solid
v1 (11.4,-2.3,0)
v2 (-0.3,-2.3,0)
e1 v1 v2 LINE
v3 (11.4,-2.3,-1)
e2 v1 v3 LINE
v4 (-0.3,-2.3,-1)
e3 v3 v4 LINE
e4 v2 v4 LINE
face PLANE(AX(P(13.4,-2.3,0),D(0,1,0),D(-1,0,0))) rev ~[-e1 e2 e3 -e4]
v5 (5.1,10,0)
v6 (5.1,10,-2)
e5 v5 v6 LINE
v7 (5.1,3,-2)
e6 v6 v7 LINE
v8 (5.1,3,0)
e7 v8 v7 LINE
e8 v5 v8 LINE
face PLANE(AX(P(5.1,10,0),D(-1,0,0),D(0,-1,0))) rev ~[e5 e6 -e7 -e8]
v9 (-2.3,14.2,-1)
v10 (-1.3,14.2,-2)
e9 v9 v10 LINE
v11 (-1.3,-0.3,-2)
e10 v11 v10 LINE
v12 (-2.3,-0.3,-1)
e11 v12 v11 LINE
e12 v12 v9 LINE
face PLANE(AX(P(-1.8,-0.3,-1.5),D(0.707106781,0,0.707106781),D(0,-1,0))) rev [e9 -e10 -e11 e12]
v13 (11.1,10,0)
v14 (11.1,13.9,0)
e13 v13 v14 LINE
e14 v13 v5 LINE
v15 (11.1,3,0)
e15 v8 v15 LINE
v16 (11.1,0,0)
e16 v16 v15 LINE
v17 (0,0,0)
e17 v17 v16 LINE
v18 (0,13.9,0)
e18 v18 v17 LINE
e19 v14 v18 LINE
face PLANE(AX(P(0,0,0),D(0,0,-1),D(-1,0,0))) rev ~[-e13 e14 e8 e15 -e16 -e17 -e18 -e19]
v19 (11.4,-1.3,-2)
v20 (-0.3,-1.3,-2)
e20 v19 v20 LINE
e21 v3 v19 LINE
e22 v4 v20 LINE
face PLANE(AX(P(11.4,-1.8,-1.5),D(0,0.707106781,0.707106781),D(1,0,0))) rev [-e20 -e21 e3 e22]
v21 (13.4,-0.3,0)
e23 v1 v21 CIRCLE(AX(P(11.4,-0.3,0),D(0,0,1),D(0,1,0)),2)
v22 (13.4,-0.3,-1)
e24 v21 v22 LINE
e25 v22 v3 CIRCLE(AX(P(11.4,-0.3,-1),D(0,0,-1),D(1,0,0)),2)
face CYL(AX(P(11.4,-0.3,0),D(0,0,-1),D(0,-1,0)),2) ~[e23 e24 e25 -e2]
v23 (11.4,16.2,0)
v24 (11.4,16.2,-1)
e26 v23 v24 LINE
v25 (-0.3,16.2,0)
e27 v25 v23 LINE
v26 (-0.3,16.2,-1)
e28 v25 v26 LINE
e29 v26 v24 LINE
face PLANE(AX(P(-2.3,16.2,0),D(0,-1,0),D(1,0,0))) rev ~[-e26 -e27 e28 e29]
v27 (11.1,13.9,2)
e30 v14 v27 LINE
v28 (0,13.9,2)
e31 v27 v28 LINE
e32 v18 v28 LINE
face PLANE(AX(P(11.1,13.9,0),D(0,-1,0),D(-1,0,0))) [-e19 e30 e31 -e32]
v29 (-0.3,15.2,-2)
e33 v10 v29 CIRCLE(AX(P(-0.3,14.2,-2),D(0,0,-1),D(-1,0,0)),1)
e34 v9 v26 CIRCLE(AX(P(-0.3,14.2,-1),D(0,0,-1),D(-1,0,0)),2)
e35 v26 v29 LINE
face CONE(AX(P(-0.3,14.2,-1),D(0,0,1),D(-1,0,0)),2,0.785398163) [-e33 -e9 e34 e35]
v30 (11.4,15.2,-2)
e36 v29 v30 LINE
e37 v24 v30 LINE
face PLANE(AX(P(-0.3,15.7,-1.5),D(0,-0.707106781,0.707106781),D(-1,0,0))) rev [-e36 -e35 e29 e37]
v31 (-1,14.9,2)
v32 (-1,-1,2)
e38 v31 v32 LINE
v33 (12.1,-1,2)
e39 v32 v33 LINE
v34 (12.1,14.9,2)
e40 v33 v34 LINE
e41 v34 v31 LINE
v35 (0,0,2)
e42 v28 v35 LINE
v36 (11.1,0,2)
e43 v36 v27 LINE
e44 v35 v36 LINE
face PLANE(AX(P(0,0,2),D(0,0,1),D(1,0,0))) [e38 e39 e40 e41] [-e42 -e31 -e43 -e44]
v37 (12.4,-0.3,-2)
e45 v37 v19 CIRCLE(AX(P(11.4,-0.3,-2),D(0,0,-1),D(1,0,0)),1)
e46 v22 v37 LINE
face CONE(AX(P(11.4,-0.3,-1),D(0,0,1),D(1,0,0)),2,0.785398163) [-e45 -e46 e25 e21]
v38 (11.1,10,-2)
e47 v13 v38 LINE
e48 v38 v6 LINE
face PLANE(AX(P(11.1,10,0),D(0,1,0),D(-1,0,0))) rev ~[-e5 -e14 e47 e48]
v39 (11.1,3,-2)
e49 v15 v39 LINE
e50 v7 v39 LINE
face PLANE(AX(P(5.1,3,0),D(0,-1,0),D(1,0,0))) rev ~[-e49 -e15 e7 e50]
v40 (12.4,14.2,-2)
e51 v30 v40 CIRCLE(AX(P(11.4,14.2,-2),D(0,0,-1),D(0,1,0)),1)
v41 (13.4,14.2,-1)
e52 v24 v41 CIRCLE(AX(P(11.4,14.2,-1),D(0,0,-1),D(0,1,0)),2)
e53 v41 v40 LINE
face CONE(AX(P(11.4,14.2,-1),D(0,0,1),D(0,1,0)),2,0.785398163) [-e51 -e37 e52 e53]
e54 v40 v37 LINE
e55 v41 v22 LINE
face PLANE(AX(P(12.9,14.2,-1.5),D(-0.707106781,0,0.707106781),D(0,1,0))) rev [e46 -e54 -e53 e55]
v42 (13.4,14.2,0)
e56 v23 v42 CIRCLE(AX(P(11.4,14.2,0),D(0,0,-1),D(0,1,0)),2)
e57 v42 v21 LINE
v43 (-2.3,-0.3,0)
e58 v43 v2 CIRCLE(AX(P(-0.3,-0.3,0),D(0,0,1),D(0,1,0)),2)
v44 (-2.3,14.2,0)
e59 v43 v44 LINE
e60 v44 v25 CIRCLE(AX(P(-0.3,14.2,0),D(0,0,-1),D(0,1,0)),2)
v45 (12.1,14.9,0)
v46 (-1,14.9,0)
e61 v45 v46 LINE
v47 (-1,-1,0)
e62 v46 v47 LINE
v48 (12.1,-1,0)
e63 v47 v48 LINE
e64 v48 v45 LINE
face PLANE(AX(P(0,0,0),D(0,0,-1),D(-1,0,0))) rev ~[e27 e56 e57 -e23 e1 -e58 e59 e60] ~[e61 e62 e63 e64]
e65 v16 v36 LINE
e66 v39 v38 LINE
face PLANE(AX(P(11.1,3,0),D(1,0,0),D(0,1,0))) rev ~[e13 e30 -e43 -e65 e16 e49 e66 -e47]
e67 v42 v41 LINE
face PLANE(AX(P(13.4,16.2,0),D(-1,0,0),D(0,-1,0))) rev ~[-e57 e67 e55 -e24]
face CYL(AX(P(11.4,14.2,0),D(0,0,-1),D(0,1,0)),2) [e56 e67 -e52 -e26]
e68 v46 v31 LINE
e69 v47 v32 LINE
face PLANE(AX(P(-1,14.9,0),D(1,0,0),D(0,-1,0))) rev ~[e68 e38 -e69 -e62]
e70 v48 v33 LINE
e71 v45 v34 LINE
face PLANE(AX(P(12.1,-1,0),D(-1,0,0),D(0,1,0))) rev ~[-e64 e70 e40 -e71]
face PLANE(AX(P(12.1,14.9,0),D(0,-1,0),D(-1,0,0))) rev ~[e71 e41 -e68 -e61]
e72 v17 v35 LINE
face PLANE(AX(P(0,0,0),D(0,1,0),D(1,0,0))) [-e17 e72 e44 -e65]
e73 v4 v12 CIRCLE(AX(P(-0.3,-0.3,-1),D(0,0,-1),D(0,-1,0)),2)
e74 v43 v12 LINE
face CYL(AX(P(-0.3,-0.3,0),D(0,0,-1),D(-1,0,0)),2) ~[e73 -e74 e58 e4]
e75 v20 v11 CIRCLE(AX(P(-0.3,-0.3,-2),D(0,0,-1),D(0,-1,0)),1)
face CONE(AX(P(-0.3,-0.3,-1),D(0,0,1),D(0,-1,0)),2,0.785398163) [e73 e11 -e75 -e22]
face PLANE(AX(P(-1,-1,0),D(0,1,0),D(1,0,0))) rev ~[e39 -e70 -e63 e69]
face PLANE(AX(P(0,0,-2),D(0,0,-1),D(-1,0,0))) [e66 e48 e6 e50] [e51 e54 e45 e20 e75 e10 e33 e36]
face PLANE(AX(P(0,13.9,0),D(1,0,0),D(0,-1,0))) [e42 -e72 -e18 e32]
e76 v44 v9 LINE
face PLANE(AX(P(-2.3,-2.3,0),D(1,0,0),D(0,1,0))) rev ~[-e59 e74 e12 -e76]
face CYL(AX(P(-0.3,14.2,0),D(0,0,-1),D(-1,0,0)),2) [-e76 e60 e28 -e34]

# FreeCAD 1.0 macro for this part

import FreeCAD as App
import Part
import Sketcher
from FreeCAD import Vector
Q = App.Units.Quantity


def edges_at(feature, points):
    """Names of the edges that pass closest to the given points."""
    edges = feature.Shape.Edges
    near = lambda p: min(range(len(edges)), key=lambda i: edges[i].distToShape(Part.Vertex(*p))[0])
    return sorted({f"Edge{near(p) + 1}" for p in points})

doc = App.newDocument("Part")
body = doc.addObject("PartDesign::Body", "Body")

# Sketch on XY plane
sketch1 = doc.addObject("Sketcher::SketchObject", "Sketch")
body.addObject(sketch1)
sketch1.AttachmentSupport = (doc.XY_Plane, [""])
sketch1.MapMode = "FlatFace"
sketch1.addGeometry(Part.LineSegment(Vector(-1, 15, 0), Vector(-1, -1, 0)), False)
sketch1.addGeometry(Part.LineSegment(Vector(-1, -1, 0), Vector(12, -1, 0)), False)
sketch1.addGeometry(Part.LineSegment(Vector(12, -1, 0), Vector(12, 15, 0)), False)
sketch1.addGeometry(Part.LineSegment(Vector(12, 15, 0), Vector(-1, 15, 0)), False)
sketch1.addGeometry(Part.LineSegment(Vector(11, 0, 0), Vector(0, 0, 0)), False)
sketch1.addGeometry(Part.LineSegment(Vector(0, 0, 0), Vector(0, 14, 0)), False)
sketch1.addGeometry(Part.LineSegment(Vector(0, 14, 0), Vector(11, 14, 0)), False)
sketch1.addGeometry(Part.LineSegment(Vector(11, 14, 0), Vector(11, 0, 0)), False)
sketch1.addConstraint(Sketcher.Constraint("Coincident", 0, 2, 1, 1))
sketch1.addConstraint(Sketcher.Constraint("Coincident", 1, 2, 2, 1))
sketch1.addConstraint(Sketcher.Constraint("Coincident", 2, 2, 3, 1))
sketch1.addConstraint(Sketcher.Constraint("Coincident", 3, 2, 0, 1))
sketch1.addConstraint(Sketcher.Constraint("Coincident", 4, 2, 5, 1))
sketch1.addConstraint(Sketcher.Constraint("Coincident", 5, 2, 6, 1))
sketch1.addConstraint(Sketcher.Constraint("Coincident", 6, 2, 7, 1))
sketch1.addConstraint(Sketcher.Constraint("Coincident", 7, 2, 4, 1))
sketch1.addConstraint(Sketcher.Constraint("Vertical", 0))
sketch1.addConstraint(Sketcher.Constraint("Horizontal", 1))
sketch1.addConstraint(Sketcher.Constraint("Vertical", 2))
sketch1.addConstraint(Sketcher.Constraint("Horizontal", 3))
sketch1.addConstraint(Sketcher.Constraint("Horizontal", 4))
sketch1.addConstraint(Sketcher.Constraint("Vertical", 5))
sketch1.addConstraint(Sketcher.Constraint("Horizontal", 6))
sketch1.addConstraint(Sketcher.Constraint("Vertical", 7))
sketch1.addConstraint(Sketcher.Constraint("Coincident", 4, 2, -1, 1))
sketch1.addConstraint(Sketcher.Constraint("DistanceX", 4, 2, 4, 1, Q("11.1 mm")))
sketch1.addConstraint(Sketcher.Constraint("DistanceY", 5, 1, 5, 2, Q("13.9 mm")))
sketch1.addConstraint(Sketcher.Constraint("DistanceX", 0, 2, -1, 1, Q("1 mm")))
sketch1.addConstraint(Sketcher.Constraint("DistanceY", 0, 2, -1, 1, Q("1 mm")))
sketch1.addConstraint(Sketcher.Constraint("DistanceY", 5, 2, 3, 2, Q("1 mm")))
sketch1.addConstraint(Sketcher.Constraint("DistanceX", 6, 2, 2, 2, Q("1 mm")))
pad1 = doc.addObject("PartDesign::Pad", "Pad")
body.addObject(pad1)
pad1.Profile = sketch1
pad1.Length = 2

# Sketch on XY plane
sketch2 = doc.addObject("Sketcher::SketchObject", "Sketch001")
body.addObject(sketch2)
sketch2.AttachmentSupport = (doc.XY_Plane, [""])
sketch2.MapMode = "FlatFace"
sketch2.addGeometry(Part.LineSegment(Vector(-2, -2, 0), Vector(-2, 16, 0)), False)
sketch2.addGeometry(Part.LineSegment(Vector(-2, 16, 0), Vector(13, 16, 0)), False)
sketch2.addGeometry(Part.LineSegment(Vector(13, 16, 0), Vector(13, -2, 0)), False)
sketch2.addGeometry(Part.LineSegment(Vector(13, -2, 0), Vector(-2, -2, 0)), False)
sketch2.addConstraint(Sketcher.Constraint("Coincident", 0, 2, 1, 1))
sketch2.addConstraint(Sketcher.Constraint("Coincident", 1, 2, 2, 1))
sketch2.addConstraint(Sketcher.Constraint("Coincident", 2, 2, 3, 1))
sketch2.addConstraint(Sketcher.Constraint("Coincident", 3, 2, 0, 1))
sketch2.addConstraint(Sketcher.Constraint("Vertical", 0))
sketch2.addConstraint(Sketcher.Constraint("Horizontal", 1))
sketch2.addConstraint(Sketcher.Constraint("Vertical", 2))
sketch2.addConstraint(Sketcher.Constraint("Horizontal", 3))
sketch2.addConstraint(Sketcher.Constraint("DistanceX", 1, 1, 1, 2, Q("15.7 mm")))
sketch2.addConstraint(Sketcher.Constraint("DistanceY", 0, 1, 0, 2, Q("18.5 mm")))
sketch2.addConstraint(Sketcher.Constraint("DistanceX", 0, 2, -1, 1, Q("2.3 mm")))
sketch2.addConstraint(Sketcher.Constraint("DistanceY", -1, 1, 0, 2, Q("16.2 mm")))
pad2 = doc.addObject("PartDesign::Pad", "Pad001")
body.addObject(pad2)
pad2.Profile = sketch2
pad2.Length = 2
pad2.Reversed = True

# Sketch on XY plane
sketch3 = doc.addObject("Sketcher::SketchObject", "Sketch002")
body.addObject(sketch3)
sketch3.AttachmentSupport = (doc.XY_Plane, [""])
sketch3.MapMode = "FlatFace"
sketch3.addGeometry(Part.LineSegment(Vector(5, 10, 0), Vector(5, 3, 0)), False)
sketch3.addGeometry(Part.LineSegment(Vector(5, 3, 0), Vector(11, 3, 0)), False)
sketch3.addGeometry(Part.LineSegment(Vector(11, 3, 0), Vector(11, 10, 0)), False)
sketch3.addGeometry(Part.LineSegment(Vector(11, 10, 0), Vector(5, 10, 0)), False)
sketch3.addConstraint(Sketcher.Constraint("Coincident", 0, 2, 1, 1))
sketch3.addConstraint(Sketcher.Constraint("Coincident", 1, 2, 2, 1))
sketch3.addConstraint(Sketcher.Constraint("Coincident", 2, 2, 3, 1))
sketch3.addConstraint(Sketcher.Constraint("Coincident", 3, 2, 0, 1))
sketch3.addConstraint(Sketcher.Constraint("Vertical", 0))
sketch3.addConstraint(Sketcher.Constraint("Horizontal", 1))
sketch3.addConstraint(Sketcher.Constraint("Vertical", 2))
sketch3.addConstraint(Sketcher.Constraint("Horizontal", 3))
sketch3.addConstraint(Sketcher.Constraint("DistanceX", 1, 1, 1, 2, Q("6 mm")))
sketch3.addConstraint(Sketcher.Constraint("DistanceY", 0, 2, 0, 1, Q("7 mm")))
sketch3.addConstraint(Sketcher.Constraint("DistanceY", -1, 1, 0, 2, Q("3 mm")))
sketch3.addConstraint(Sketcher.Constraint("DistanceX", -1, 1, 0, 2, Q("5.1 mm")))
pocket1 = doc.addObject("PartDesign::Pocket", "Pocket")
body.addObject(pocket1)
pocket1.Profile = sketch3
pocket1.Length = 2
doc.recompute()

fillet = doc.addObject("PartDesign::Fillet", "Fillet")
body.addObject(fillet)
fillet.Base = (pocket1, edges_at(pocket1, [
    (13.4, 16.2, -1),
    (-2.3, 16.2, -1),
    (13.4, -2.3, -1),
    (-2.3, -2.3, -1),
]))
fillet.Radius = 2
doc.recompute()

chamfer = doc.addObject("PartDesign::Chamfer", "Chamfer")
body.addObject(chamfer)
chamfer.Base = (fillet, edges_at(fillet, [
    (5.55, 16.2, -2),
    (12.814, 15.614, -2),
    (13.4, 6.95, -2),
    (12.814, -1.714, -2),
    (5.55, -2.3, -2),
    (-1.714, -1.714, -2),
    (-2.3, 6.95, -2),
    (-1.714, 15.614, -2),
]))
chamfer.Size = 1

doc.recompute()
